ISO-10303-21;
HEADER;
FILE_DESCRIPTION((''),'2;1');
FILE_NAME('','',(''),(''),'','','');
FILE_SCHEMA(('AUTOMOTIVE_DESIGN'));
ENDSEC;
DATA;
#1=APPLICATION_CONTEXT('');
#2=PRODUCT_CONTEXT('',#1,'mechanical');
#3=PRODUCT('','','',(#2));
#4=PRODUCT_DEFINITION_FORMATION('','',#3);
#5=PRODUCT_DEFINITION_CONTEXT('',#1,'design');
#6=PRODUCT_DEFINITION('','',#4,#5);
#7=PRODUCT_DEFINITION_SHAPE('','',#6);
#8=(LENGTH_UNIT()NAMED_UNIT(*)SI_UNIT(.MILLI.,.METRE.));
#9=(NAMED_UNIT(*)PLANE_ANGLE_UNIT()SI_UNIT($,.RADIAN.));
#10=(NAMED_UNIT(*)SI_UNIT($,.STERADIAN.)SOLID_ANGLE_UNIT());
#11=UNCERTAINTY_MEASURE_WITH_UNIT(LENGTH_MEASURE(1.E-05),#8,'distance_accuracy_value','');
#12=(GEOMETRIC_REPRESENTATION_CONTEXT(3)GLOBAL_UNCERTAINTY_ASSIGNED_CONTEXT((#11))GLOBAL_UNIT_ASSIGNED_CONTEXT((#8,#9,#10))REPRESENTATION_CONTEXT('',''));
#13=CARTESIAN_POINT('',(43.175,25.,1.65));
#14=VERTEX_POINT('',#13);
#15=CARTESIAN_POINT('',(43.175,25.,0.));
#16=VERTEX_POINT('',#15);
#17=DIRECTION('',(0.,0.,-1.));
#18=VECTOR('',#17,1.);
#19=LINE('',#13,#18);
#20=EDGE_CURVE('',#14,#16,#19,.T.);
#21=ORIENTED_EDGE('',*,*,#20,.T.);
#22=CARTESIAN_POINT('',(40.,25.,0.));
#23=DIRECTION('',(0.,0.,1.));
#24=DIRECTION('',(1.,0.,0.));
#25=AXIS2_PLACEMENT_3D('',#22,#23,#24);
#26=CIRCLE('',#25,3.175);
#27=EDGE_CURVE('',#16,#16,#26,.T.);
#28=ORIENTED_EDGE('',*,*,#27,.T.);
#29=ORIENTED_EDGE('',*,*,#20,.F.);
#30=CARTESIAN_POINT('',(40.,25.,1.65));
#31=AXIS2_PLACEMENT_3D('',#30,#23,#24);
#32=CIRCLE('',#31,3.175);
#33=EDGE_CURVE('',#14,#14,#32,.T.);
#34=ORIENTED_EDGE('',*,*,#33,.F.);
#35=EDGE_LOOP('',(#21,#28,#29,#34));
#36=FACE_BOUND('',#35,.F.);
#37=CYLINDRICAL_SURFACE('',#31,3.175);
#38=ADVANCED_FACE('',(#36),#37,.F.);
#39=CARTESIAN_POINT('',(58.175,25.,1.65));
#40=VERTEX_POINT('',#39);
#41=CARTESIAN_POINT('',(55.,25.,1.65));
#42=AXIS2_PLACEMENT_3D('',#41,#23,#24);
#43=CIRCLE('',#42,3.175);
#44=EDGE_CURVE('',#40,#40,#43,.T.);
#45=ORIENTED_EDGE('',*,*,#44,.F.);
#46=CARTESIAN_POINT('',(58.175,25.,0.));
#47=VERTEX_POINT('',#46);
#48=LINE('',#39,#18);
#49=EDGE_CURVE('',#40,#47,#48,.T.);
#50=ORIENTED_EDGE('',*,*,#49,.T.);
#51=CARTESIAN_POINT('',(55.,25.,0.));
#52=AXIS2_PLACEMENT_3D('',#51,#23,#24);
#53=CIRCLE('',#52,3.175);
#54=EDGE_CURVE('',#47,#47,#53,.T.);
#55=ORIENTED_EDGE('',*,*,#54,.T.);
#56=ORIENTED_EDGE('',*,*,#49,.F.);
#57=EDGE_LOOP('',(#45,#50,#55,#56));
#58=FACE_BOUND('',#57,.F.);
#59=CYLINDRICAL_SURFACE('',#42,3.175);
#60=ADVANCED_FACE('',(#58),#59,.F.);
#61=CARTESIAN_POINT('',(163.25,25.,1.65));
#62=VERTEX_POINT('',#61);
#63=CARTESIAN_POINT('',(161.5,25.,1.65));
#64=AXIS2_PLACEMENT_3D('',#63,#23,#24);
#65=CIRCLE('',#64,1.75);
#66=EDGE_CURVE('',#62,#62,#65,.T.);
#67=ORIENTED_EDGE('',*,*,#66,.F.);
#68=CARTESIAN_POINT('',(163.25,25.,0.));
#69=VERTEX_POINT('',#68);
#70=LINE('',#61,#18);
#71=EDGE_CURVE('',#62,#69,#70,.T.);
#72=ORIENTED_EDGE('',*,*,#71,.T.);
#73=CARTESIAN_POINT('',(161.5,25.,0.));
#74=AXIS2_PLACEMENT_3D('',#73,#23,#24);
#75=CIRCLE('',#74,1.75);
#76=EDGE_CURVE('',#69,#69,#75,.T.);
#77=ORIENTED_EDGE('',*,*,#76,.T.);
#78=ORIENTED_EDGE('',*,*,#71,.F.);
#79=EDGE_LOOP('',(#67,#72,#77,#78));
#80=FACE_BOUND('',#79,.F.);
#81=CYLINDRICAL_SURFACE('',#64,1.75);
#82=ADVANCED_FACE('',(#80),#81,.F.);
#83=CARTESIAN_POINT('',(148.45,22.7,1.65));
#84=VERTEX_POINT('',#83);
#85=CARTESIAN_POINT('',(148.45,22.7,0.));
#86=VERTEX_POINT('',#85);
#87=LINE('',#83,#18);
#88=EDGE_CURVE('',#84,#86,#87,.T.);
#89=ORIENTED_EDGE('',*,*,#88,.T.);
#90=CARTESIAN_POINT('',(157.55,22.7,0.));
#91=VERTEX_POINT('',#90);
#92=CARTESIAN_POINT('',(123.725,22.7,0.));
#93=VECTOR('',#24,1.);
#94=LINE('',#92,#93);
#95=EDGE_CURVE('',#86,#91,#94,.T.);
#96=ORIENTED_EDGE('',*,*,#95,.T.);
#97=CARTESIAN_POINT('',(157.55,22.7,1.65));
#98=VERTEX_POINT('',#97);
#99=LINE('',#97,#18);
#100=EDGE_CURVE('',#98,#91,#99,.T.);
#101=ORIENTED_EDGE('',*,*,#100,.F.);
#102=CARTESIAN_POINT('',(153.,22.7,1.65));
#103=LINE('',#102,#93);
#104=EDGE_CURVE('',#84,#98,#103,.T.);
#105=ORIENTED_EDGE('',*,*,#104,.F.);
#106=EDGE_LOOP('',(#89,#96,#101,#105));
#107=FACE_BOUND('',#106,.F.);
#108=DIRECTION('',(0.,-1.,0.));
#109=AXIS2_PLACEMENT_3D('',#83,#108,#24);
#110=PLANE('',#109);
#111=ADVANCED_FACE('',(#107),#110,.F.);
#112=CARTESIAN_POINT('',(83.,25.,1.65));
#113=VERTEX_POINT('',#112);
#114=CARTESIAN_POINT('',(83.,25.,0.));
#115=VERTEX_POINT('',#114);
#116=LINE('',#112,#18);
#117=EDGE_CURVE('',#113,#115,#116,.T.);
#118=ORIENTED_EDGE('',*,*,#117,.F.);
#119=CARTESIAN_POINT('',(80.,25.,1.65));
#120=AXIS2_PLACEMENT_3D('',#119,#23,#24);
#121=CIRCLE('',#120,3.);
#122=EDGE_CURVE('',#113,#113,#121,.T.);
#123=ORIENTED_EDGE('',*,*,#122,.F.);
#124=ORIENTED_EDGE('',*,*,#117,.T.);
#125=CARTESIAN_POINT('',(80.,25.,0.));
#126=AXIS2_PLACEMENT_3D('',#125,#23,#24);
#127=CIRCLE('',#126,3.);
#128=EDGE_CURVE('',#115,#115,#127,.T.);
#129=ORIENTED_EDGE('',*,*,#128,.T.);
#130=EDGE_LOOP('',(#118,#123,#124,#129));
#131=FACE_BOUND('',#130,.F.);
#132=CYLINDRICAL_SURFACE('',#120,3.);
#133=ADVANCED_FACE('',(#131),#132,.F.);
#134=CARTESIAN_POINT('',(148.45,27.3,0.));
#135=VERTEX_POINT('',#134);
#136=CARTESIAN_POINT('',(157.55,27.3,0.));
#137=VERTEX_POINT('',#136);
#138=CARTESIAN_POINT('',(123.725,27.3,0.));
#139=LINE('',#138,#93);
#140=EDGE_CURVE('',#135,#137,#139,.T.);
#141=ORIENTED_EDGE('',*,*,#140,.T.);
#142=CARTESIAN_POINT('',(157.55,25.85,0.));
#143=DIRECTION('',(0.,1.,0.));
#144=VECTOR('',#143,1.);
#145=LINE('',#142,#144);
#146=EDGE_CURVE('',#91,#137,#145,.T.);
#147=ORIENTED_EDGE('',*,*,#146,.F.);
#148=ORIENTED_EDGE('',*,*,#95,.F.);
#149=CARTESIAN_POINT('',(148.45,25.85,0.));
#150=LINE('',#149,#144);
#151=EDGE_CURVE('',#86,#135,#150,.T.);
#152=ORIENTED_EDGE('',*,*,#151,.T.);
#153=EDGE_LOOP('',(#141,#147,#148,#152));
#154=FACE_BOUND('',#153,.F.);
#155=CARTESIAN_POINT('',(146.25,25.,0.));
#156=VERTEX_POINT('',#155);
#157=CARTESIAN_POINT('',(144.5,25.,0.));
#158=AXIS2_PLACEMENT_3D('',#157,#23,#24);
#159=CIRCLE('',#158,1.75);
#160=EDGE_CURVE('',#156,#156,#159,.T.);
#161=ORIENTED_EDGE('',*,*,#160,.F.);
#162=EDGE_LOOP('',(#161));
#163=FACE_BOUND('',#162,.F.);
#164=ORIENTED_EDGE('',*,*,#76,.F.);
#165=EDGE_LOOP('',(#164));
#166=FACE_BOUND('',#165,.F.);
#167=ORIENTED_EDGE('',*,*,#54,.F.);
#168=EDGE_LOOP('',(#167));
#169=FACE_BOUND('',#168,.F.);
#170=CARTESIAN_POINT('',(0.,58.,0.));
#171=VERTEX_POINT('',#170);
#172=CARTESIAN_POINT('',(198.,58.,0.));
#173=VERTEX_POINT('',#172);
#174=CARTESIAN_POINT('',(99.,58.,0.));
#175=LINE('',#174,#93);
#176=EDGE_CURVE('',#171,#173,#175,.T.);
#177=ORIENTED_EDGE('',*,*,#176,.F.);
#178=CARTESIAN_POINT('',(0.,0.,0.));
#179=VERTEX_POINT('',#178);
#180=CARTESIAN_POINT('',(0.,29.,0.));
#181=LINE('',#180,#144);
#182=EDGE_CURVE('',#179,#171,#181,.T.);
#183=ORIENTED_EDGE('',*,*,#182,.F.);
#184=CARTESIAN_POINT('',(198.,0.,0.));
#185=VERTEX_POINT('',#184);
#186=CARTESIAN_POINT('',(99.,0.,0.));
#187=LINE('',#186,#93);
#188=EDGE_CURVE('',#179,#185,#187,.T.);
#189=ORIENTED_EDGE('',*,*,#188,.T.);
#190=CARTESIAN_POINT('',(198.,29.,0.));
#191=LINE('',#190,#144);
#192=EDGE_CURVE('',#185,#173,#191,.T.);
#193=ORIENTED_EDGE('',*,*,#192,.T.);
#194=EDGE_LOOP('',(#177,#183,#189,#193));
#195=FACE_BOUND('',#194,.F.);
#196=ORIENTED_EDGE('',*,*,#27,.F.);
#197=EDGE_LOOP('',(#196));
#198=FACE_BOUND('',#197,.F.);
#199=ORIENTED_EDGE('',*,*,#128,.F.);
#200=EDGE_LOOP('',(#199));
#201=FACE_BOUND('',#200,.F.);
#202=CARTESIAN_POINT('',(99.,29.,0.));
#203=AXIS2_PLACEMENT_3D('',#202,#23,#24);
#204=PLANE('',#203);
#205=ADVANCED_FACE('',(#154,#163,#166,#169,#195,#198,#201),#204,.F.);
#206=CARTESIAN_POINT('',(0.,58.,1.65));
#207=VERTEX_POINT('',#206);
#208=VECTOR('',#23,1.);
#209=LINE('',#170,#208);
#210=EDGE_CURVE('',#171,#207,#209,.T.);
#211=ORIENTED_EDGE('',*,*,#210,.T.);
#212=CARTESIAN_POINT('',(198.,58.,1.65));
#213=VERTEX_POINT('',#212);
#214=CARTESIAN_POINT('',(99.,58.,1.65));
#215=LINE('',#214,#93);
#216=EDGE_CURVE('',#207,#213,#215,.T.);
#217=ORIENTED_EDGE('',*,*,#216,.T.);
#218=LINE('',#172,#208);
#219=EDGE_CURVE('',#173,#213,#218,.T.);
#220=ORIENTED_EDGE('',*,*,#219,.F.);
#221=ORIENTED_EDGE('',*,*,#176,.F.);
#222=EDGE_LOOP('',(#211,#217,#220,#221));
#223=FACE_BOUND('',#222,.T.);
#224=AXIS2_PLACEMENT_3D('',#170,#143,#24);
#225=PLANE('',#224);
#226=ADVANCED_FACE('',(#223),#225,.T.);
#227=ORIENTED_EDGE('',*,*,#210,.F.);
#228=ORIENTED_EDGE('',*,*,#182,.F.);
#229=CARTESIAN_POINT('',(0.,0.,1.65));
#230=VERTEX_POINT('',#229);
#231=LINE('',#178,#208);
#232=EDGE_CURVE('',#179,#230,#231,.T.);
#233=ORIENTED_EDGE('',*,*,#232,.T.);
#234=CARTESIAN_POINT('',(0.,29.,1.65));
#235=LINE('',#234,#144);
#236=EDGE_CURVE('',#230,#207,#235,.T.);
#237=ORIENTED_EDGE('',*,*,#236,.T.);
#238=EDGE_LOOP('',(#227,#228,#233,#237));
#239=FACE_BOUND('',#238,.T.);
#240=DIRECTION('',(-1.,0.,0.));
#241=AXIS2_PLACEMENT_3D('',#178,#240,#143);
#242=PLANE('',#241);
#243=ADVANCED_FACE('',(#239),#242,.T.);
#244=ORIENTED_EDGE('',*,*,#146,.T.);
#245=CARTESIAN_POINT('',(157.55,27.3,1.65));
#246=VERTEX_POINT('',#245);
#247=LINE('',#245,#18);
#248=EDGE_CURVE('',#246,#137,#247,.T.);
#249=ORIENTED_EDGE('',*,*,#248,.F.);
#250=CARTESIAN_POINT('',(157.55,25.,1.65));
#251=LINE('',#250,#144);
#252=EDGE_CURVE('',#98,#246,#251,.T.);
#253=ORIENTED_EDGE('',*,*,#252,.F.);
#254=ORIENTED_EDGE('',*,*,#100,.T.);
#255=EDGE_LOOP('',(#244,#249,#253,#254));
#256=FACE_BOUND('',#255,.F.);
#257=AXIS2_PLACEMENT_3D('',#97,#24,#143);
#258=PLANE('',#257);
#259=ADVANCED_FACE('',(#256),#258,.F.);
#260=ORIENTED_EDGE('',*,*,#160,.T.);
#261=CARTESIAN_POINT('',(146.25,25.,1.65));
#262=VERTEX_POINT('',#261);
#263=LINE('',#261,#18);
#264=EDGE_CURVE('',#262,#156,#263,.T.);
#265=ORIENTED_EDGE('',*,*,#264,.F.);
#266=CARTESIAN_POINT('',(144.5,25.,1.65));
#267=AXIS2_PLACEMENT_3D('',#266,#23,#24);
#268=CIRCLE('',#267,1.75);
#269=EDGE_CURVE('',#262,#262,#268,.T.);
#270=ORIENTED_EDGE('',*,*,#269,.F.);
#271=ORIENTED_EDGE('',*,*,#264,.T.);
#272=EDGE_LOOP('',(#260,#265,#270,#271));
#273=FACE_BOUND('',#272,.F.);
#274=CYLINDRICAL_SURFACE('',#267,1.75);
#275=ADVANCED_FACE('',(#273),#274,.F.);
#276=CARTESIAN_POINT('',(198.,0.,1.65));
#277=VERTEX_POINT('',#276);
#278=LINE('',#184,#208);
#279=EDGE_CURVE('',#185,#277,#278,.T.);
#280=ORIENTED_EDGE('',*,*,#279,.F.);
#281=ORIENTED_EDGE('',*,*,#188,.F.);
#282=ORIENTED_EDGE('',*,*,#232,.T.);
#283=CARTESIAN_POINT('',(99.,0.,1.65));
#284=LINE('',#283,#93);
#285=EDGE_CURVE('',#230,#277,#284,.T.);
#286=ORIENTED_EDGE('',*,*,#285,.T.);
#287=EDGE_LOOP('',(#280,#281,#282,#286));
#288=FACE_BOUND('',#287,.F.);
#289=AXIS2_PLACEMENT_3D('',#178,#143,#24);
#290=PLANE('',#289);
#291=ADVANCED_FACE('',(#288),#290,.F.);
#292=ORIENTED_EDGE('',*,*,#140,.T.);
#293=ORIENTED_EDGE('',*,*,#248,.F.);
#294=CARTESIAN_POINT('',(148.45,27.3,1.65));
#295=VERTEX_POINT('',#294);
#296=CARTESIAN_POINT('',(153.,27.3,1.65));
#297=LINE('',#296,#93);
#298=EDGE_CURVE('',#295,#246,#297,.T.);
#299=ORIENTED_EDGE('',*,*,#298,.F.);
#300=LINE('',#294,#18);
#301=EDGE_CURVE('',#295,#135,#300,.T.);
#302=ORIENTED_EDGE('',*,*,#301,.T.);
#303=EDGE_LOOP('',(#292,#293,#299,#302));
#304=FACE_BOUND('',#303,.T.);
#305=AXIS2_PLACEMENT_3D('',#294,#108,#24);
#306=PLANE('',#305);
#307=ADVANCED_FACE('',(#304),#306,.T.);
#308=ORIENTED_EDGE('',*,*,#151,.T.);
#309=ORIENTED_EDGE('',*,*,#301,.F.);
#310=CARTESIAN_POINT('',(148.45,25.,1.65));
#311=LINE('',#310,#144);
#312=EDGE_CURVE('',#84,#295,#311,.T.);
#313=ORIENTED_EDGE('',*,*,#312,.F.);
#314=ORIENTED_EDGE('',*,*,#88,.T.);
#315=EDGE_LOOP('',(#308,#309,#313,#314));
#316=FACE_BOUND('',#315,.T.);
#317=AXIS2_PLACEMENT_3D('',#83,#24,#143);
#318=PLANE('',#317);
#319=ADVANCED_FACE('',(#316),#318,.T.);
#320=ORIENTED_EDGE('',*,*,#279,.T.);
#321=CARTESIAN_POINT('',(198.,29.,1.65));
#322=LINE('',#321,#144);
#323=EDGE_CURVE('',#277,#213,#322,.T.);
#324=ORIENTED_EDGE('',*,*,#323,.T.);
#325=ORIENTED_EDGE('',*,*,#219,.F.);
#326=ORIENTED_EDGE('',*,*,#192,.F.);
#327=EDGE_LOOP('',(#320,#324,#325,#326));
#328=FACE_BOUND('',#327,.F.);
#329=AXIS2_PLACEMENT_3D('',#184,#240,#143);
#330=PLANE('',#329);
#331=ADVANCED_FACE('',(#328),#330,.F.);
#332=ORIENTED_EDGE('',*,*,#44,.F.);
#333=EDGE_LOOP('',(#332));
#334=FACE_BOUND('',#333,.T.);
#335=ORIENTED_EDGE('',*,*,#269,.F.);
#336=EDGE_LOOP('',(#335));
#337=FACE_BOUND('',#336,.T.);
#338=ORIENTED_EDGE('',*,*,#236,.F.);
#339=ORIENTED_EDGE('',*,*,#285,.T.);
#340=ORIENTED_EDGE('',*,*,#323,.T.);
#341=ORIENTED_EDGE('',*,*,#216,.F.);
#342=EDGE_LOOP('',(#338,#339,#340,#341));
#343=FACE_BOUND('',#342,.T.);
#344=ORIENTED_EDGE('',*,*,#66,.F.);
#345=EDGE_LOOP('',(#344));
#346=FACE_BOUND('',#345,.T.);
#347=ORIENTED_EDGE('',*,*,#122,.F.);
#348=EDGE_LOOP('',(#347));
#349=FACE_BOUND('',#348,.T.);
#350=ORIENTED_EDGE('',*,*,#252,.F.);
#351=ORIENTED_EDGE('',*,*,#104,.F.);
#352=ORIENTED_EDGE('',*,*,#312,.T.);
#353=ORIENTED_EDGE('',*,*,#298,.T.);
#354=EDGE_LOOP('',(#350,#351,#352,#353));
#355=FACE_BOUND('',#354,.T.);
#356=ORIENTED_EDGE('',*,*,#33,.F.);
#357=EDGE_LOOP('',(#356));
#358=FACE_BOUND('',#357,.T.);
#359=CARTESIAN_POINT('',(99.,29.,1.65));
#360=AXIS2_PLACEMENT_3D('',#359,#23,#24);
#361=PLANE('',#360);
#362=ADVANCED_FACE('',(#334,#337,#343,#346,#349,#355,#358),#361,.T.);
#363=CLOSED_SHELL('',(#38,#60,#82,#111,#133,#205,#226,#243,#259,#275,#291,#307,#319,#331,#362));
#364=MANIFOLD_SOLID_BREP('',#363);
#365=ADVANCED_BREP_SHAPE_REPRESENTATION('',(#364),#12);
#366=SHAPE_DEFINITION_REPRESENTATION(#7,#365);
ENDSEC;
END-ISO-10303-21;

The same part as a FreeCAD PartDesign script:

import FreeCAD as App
import Part
import Sketcher
Q = App.Units.Quantity


def add_polygon(sketch, points):
    """Adds a closed chain of lines whose ends are joined by coincident constraints."""
    first, n = sketch.GeometryCount, len(points)
    for a, b in zip(points, points[1:] + points[:1]):
        sketch.addGeometry(Part.LineSegment(App.Vector(*a, 0), App.Vector(*b, 0)), False)
    for i in range(n):
        sketch.addConstraint(Sketcher.Constraint("Coincident", first + i, 2, first + (i + 1) % n, 1))

doc = App.newDocument("Part")
body = doc.addObject("PartDesign::Body", "Body")

# Sketch on XY plane
sketch1 = body.newObject("Sketcher::SketchObject", "Sketch")
sketch1.AttachmentSupport = (doc.getObject("XY_Plane"), [""])
sketch1.MapMode = "FlatFace"
add_polygon(sketch1, [(0, 58), (0, 0), (198, 0), (198, 58)])  # lines 0-3
sketch1.addConstraint([
    Sketcher.Constraint("Vertical", 0),
    Sketcher.Constraint("Horizontal", 1),
    Sketcher.Constraint("Vertical", 2),
    Sketcher.Constraint("Horizontal", 3),
    Sketcher.Constraint("Coincident", 0, 2, -1, 1),
    Sketcher.Constraint("DistanceX", 1, 1, 1, 2, Q("198 mm")),
    Sketcher.Constraint("DistanceY", 0, 2, 0, 1, Q("58 mm")),
])
pad1 = body.newObject("PartDesign::Pad", "Pad")
pad1.Profile = sketch1
pad1.Length = 1.65

# Sketch on XY plane
sketch2 = body.newObject("Sketcher::SketchObject", "Sketch001")
sketch2.AttachmentSupport = (doc.getObject("XY_Plane"), [""])
sketch2.MapMode = "FlatFace"
sketch2.AttachmentOffset = App.Placement(App.Vector(0, 0, 1.65), App.Rotation())
sketch2.addGeometry(Part.Circle(App.Vector(144.5, 25, 0), App.Vector(0, 0, 1), 1.8), False)  # 0
sketch2.addGeometry(Part.Circle(App.Vector(161.5, 25, 0), App.Vector(0, 0, 1), 1.8), False)  # 1
sketch2.addGeometry(Part.Circle(App.Vector(80, 25, 0), App.Vector(0, 0, 1), 3), False)  # 2
sketch2.addGeometry(Part.Circle(App.Vector(40, 25, 0), App.Vector(0, 0, 1), 3.2), False)  # 3
sketch2.addGeometry(Part.Circle(App.Vector(55, 25, 0), App.Vector(0, 0, 1), 3.2), False)  # 4
add_polygon(sketch2, [(148.4, 27.3), (148.4, 22.7), (157.6, 22.7), (157.6, 27.3)])  # lines 5-8
sketch2.addConstraint([
    Sketcher.Constraint("Vertical", 5),
    Sketcher.Constraint("Horizontal", 6),
    Sketcher.Constraint("Vertical", 7),
    Sketcher.Constraint("Horizontal", 8),
    Sketcher.Constraint("Equal", 0, 1),
    Sketcher.Constraint("Equal", 3, 4),
    Sketcher.Constraint("Horizontal", 0, 3, 1, 3),
    Sketcher.Constraint("Horizontal", 1, 3, 2, 3),
    Sketcher.Constraint("Horizontal", 2, 3, 3, 3),
    Sketcher.Constraint("Horizontal", 3, 3, 4, 3),
    Sketcher.Constraint("Diameter", 2, Q("6 mm")),
    Sketcher.Constraint("Diameter", 0, Q("3.5 mm")),
    Sketcher.Constraint("Diameter", 3, Q("6.35 mm")),
    Sketcher.Constraint("DistanceX", 6, 1, 6, 2, Q("9.1 mm")),
    Sketcher.Constraint("DistanceY", 5, 2, 5, 1, Q("4.6 mm")),
    Sketcher.Constraint("DistanceY", -1, 1, 0, 3, Q("25 mm")),
    Sketcher.Constraint("DistanceX", -1, 1, 2, 3, Q("80 mm")),
    Sketcher.Constraint("DistanceX", -1, 1, 3, 3, Q("40 mm")),
    Sketcher.Constraint("DistanceX", -1, 1, 4, 3, Q("55 mm")),
    Sketcher.Constraint("DistanceX", 0, 3, 1, 3, Q("17 mm")),
    Sketcher.Constraint("DistanceX", -1, 1, 0, 3, Q("144.5 mm")),
    Sketcher.Constraint("DistanceY", -1, 1, 5, 2, Q("22.7 mm")),
    Sketcher.Constraint("DistanceX", -1, 1, 5, 2, Q("148.45 mm")),
])
pocket1 = body.newObject("PartDesign::Pocket", "Pocket")
pocket1.Profile = sketch2
pocket1.Length = 5

doc.recompute()
